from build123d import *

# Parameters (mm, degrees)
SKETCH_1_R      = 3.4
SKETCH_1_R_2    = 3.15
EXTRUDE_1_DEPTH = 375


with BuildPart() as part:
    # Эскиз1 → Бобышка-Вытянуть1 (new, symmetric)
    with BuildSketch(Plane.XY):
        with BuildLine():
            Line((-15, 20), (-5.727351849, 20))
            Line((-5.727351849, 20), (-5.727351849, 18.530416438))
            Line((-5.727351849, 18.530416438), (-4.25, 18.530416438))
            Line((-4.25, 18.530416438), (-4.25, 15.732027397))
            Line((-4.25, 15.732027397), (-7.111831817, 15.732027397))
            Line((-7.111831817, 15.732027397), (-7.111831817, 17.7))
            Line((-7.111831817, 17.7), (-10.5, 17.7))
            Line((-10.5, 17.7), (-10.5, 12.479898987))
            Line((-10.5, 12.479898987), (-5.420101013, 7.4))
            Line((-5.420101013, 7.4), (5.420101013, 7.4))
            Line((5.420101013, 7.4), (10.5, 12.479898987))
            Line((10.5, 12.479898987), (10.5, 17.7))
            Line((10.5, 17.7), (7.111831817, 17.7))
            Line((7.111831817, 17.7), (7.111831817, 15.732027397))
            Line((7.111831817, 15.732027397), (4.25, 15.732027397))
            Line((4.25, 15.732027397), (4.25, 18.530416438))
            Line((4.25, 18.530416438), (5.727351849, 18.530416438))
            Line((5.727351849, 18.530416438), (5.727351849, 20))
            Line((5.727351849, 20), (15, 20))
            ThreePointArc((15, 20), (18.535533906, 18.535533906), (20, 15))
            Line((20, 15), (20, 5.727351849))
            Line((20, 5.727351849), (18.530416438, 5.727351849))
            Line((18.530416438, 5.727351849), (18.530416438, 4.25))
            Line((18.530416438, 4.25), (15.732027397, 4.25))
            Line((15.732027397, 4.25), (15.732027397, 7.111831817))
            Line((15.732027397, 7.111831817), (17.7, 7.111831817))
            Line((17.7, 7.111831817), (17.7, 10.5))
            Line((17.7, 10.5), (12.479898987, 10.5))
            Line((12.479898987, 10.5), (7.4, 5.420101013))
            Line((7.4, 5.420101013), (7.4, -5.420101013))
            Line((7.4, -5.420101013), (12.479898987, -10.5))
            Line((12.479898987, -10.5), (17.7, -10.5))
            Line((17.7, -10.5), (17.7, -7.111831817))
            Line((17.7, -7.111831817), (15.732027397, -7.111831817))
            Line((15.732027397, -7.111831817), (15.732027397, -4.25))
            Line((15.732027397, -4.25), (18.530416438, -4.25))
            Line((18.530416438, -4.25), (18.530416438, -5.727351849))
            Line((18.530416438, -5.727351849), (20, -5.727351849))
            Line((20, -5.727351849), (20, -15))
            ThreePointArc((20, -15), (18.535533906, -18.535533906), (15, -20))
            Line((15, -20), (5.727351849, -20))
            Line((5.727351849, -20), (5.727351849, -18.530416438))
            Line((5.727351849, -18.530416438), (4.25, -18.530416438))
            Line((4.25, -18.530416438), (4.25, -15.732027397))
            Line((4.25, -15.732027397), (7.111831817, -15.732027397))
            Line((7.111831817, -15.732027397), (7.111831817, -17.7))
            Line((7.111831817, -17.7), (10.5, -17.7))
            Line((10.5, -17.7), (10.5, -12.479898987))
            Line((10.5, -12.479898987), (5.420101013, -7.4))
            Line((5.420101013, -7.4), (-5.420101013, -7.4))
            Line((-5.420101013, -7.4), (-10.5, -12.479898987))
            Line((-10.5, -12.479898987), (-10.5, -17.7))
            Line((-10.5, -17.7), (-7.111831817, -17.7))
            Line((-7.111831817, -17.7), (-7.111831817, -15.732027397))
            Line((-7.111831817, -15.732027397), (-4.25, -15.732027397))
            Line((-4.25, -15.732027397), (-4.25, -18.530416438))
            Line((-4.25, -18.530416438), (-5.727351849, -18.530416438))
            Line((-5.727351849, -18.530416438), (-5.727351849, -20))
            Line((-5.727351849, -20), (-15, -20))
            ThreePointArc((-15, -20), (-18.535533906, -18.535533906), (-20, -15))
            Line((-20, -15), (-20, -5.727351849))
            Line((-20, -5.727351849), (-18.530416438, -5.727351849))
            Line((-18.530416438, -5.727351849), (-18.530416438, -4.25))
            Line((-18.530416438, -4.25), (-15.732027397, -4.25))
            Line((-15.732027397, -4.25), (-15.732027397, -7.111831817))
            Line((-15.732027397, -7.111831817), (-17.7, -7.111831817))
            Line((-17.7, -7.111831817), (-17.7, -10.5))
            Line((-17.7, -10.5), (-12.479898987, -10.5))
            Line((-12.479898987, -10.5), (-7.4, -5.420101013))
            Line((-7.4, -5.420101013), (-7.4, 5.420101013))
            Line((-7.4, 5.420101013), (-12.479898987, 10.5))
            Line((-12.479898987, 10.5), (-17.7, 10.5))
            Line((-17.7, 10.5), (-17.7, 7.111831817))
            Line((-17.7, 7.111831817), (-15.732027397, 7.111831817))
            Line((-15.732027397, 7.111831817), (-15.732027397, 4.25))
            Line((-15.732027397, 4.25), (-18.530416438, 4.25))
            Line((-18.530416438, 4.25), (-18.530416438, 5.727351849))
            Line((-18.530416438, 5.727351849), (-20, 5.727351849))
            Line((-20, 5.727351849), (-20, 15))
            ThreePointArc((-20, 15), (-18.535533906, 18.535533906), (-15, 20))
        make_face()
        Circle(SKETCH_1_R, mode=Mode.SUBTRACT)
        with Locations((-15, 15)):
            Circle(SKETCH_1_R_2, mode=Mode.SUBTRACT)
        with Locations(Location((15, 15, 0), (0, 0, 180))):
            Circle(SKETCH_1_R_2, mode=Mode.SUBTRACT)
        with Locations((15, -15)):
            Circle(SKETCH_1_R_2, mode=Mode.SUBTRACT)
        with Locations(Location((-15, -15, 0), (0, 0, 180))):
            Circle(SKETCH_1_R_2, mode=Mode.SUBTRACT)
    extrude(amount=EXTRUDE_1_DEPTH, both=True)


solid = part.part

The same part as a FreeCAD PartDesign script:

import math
import FreeCAD as App
import Part
import Sketcher

doc = App.newDocument("Part")
body = doc.addObject("PartDesign::Body", "Body")

sketch1 = doc.addObject("Sketcher::SketchObject", "Sketch")
body.addObject(sketch1)
sketch1.AttachmentSupport = (doc.XY_Plane, [""])
sketch1.MapMode = "FlatFace"
sketch1.addGeometry([
    Part.LineSegment(App.Vector(-5.7, 20, 0), App.Vector(-15, 20, 0)),
    Part.ArcOfCircle(Part.Circle(App.Vector(-15, 15, 0), App.Vector(0, 0, 1), 5), math.radians(90), math.radians(180)),
    Part.LineSegment(App.Vector(-20, 15, 0), App.Vector(-20, 5.7, 0)),
    Part.LineSegment(App.Vector(-20, 5.7, 0), App.Vector(-18.5, 5.7, 0)),
    Part.LineSegment(App.Vector(-18.5, 5.7, 0), App.Vector(-18.5, 4.2, 0)),
    Part.LineSegment(App.Vector(-18.5, 4.2, 0), App.Vector(-15.7, 4.2, 0)),
    Part.LineSegment(App.Vector(-15.7, 4.2, 0), App.Vector(-15.7, 7.1, 0)),
    Part.LineSegment(App.Vector(-15.7, 7.1, 0), App.Vector(-17.7, 7.1, 0)),
    Part.LineSegment(App.Vector(-17.7, 7.1, 0), App.Vector(-17.7, 10.5, 0)),
    Part.LineSegment(App.Vector(-17.7, 10.5, 0), App.Vector(-12.5, 10.5, 0)),
    Part.LineSegment(App.Vector(-12.5, 10.5, 0), App.Vector(-7.4, 5.4, 0)),
    Part.LineSegment(App.Vector(-7.4, 5.4, 0), App.Vector(-7.4, -5.4, 0)),
    Part.LineSegment(App.Vector(-7.4, -5.4, 0), App.Vector(-12.5, -10.5, 0)),
    Part.LineSegment(App.Vector(-12.5, -10.5, 0), App.Vector(-17.7, -10.5, 0)),
    Part.LineSegment(App.Vector(-17.7, -10.5, 0), App.Vector(-17.7, -7.1, 0)),
    Part.LineSegment(App.Vector(-17.7, -7.1, 0), App.Vector(-15.7, -7.1, 0)),
    Part.LineSegment(App.Vector(-15.7, -7.1, 0), App.Vector(-15.7, -4.2, 0)),
    Part.LineSegment(App.Vector(-15.7, -4.2, 0), App.Vector(-18.5, -4.2, 0)),
    Part.LineSegment(App.Vector(-18.5, -4.2, 0), App.Vector(-18.5, -5.7, 0)),
    Part.LineSegment(App.Vector(-18.5, -5.7, 0), App.Vector(-20, -5.7, 0)),
    Part.LineSegment(App.Vector(-20, -5.7, 0), App.Vector(-20, -15, 0)),
    Part.ArcOfCircle(Part.Circle(App.Vector(-15, -15, 0), App.Vector(0, 0, 1), 5), math.radians(180), math.radians(270)),
    Part.LineSegment(App.Vector(-15, -20, 0), App.Vector(-5.7, -20, 0)),
    Part.LineSegment(App.Vector(-5.7, -20, 0), App.Vector(-5.7, -18.5, 0)),
    Part.LineSegment(App.Vector(-5.7, -18.5, 0), App.Vector(-4.2, -18.5, 0)),
    Part.LineSegment(App.Vector(-4.2, -18.5, 0), App.Vector(-4.2, -15.7, 0)),
    Part.LineSegment(App.Vector(-4.2, -15.7, 0), App.Vector(-7.1, -15.7, 0)),
    Part.LineSegment(App.Vector(-7.1, -15.7, 0), App.Vector(-7.1, -17.7, 0)),
    Part.LineSegment(App.Vector(-7.1, -17.7, 0), App.Vector(-10.5, -17.7, 0)),
    Part.LineSegment(App.Vector(-10.5, -17.7, 0), App.Vector(-10.5, -12.5, 0)),
    Part.LineSegment(App.Vector(-10.5, -12.5, 0), App.Vector(-5.4, -7.4, 0)),
    Part.LineSegment(App.Vector(-5.4, -7.4, 0), App.Vector(5.4, -7.4, 0)),
    Part.LineSegment(App.Vector(5.4, -7.4, 0), App.Vector(10.5, -12.5, 0)),
    Part.LineSegment(App.Vector(10.5, -12.5, 0), App.Vector(10.5, -17.7, 0)),
    Part.LineSegment(App.Vector(10.5, -17.7, 0), App.Vector(7.1, -17.7, 0)),
    Part.LineSegment(App.Vector(7.1, -17.7, 0), App.Vector(7.1, -15.7, 0)),
    Part.LineSegment(App.Vector(7.1, -15.7, 0), App.Vector(4.2, -15.7, 0)),
    Part.LineSegment(App.Vector(4.2, -15.7, 0), App.Vector(4.2, -18.5, 0)),
    Part.LineSegment(App.Vector(4.2, -18.5, 0), App.Vector(5.7, -18.5, 0)),
    Part.LineSegment(App.Vector(5.7, -18.5, 0), App.Vector(5.7, -20, 0)),
    Part.LineSegment(App.Vector(5.7, -20, 0), App.Vector(15, -20, 0)),
    Part.ArcOfCircle(Part.Circle(App.Vector(15, -15, 0), App.Vector(0, 0, 1), 5), math.radians(-90), math.radians(0)),
    Part.LineSegment(App.Vector(20, -15, 0), App.Vector(20, -5.7, 0)),
    Part.LineSegment(App.Vector(20, -5.7, 0), App.Vector(18.5, -5.7, 0)),
    Part.LineSegment(App.Vector(18.5, -5.7, 0), App.Vector(18.5, -4.2, 0)),
    Part.LineSegment(App.Vector(18.5, -4.2, 0), App.Vector(15.7, -4.2, 0)),
    Part.LineSegment(App.Vector(15.7, -4.2, 0), App.Vector(15.7, -7.1, 0)),
    Part.LineSegment(App.Vector(15.7, -7.1, 0), App.Vector(17.7, -7.1, 0)),
    Part.LineSegment(App.Vector(17.7, -7.1, 0), App.Vector(17.7, -10.5, 0)),
    Part.LineSegment(App.Vector(17.7, -10.5, 0), App.Vector(12.5, -10.5, 0)),
    Part.LineSegment(App.Vector(12.5, -10.5, 0), App.Vector(7.4, -5.4, 0)),
    Part.LineSegment(App.Vector(7.4, -5.4, 0), App.Vector(7.4, 5.4, 0)),
    Part.LineSegment(App.Vector(7.4, 5.4, 0), App.Vector(12.5, 10.5, 0)),
    Part.LineSegment(App.Vector(12.5, 10.5, 0), App.Vector(17.7, 10.5, 0)),
    Part.LineSegment(App.Vector(17.7, 10.5, 0), App.Vector(17.7, 7.1, 0)),
    Part.LineSegment(App.Vector(17.7, 7.1, 0), App.Vector(15.7, 7.1, 0)),
    Part.LineSegment(App.Vector(15.7, 7.1, 0), App.Vector(15.7, 4.2, 0)),
    Part.LineSegment(App.Vector(15.7, 4.2, 0), App.Vector(18.5, 4.2, 0)),
    Part.LineSegment(App.Vector(18.5, 4.2, 0), App.Vector(18.5, 5.7, 0)),
    Part.LineSegment(App.Vector(18.5, 5.7, 0), App.Vector(20, 5.7, 0)),
    Part.LineSegment(App.Vector(20, 5.7, 0), App.Vector(20, 15, 0)),
    Part.ArcOfCircle(Part.Circle(App.Vector(15, 15, 0), App.Vector(0, 0, 1), 5), math.radians(0), math.radians(90)),
    Part.LineSegment(App.Vector(15, 20, 0), App.Vector(5.7, 20, 0)),
    Part.LineSegment(App.Vector(5.7, 20, 0), App.Vector(5.7, 18.5, 0)),
    Part.LineSegment(App.Vector(5.7, 18.5, 0), App.Vector(4.2, 18.5, 0)),
    Part.LineSegment(App.Vector(4.2, 18.5, 0), App.Vector(4.2, 15.7, 0)),
    Part.LineSegment(App.Vector(4.2, 15.7, 0), App.Vector(7.1, 15.7, 0)),
    Part.LineSegment(App.Vector(7.1, 15.7, 0), App.Vector(7.1, 17.7, 0)),
    Part.LineSegment(App.Vector(7.1, 17.7, 0), App.Vector(10.5, 17.7, 0)),
    Part.LineSegment(App.Vector(10.5, 17.7, 0), App.Vector(10.5, 12.5, 0)),
    Part.LineSegment(App.Vector(10.5, 12.5, 0), App.Vector(5.4, 7.4, 0)),
    Part.LineSegment(App.Vector(5.4, 7.4, 0), App.Vector(-5.4, 7.4, 0)),
    Part.LineSegment(App.Vector(-5.4, 7.4, 0), App.Vector(-10.5, 12.5, 0)),
    Part.LineSegment(App.Vector(-10.5, 12.5, 0), App.Vector(-10.5, 17.7, 0)),
    Part.LineSegment(App.Vector(-10.5, 17.7, 0), App.Vector(-7.1, 17.7, 0)),
    Part.LineSegment(App.Vector(-7.1, 17.7, 0), App.Vector(-7.1, 15.7, 0)),
    Part.LineSegment(App.Vector(-7.1, 15.7, 0), App.Vector(-4.2, 15.7, 0)),
    Part.LineSegment(App.Vector(-4.2, 15.7, 0), App.Vector(-4.2, 18.5, 0)),
    Part.LineSegment(App.Vector(-4.2, 18.5, 0), App.Vector(-5.7, 18.5, 0)),
    Part.LineSegment(App.Vector(-5.7, 18.5, 0), App.Vector(-5.7, 20, 0)),
    Part.Circle(App.Vector(15, -15, 0), App.Vector(0, 0, 1), 3.1),
    Part.Circle(App.Vector(-15, -15, 0), App.Vector(0, 0, 1), 3.1),
    Part.Circle(App.Vector(15, 15, 0), App.Vector(0, 0, 1), 3.1),
    Part.Circle(App.Vector(0, 0, 0), App.Vector(0, 0, 1), 3.4),
    Part.Circle(App.Vector(-15, 15, 0), App.Vector(0, 0, 1), 3.1),
], False)
sketch1.addConstraint([
    Sketcher.Constraint("Tangent", 0, 2, 1, 1),
    Sketcher.Constraint("Tangent", 1, 2, 2, 1),
    Sketcher.Constraint("Coincident", 2, 2, 3, 1),
    Sketcher.Constraint("Coincident", 3, 2, 4, 1),
    Sketcher.Constraint("Coincident", 4, 2, 5, 1),
    Sketcher.Constraint("Coincident", 5, 2, 6, 1),
    Sketcher.Constraint("Coincident", 6, 2, 7, 1),
    Sketcher.Constraint("Coincident", 7, 2, 8, 1),
    Sketcher.Constraint("Coincident", 8, 2, 9, 1),
    Sketcher.Constraint("Coincident", 9, 2, 10, 1),
    Sketcher.Constraint("Coincident", 10, 2, 11, 1),
    Sketcher.Constraint("Coincident", 11, 2, 12, 1),
    Sketcher.Constraint("Coincident", 12, 2, 13, 1),
    Sketcher.Constraint("Coincident", 13, 2, 14, 1),
    Sketcher.Constraint("Coincident", 14, 2, 15, 1),
    Sketcher.Constraint("Coincident", 15, 2, 16, 1),
    Sketcher.Constraint("Coincident", 16, 2, 17, 1),
    Sketcher.Constraint("Coincident", 17, 2, 18, 1),
    Sketcher.Constraint("Coincident", 18, 2, 19, 1),
    Sketcher.Constraint("Coincident", 19, 2, 20, 1),
    Sketcher.Constraint("Tangent", 20, 2, 21, 1),
    Sketcher.Constraint("Tangent", 21, 2, 22, 1),
    Sketcher.Constraint("Coincident", 22, 2, 23, 1),
    Sketcher.Constraint("Coincident", 23, 2, 24, 1),
    Sketcher.Constraint("Coincident", 24, 2, 25, 1),
    Sketcher.Constraint("Coincident", 25, 2, 26, 1),
    Sketcher.Constraint("Coincident", 26, 2, 27, 1),
    Sketcher.Constraint("Coincident", 27, 2, 28, 1),
    Sketcher.Constraint("Coincident", 28, 2, 29, 1),
    Sketcher.Constraint("Coincident", 29, 2, 30, 1),
    Sketcher.Constraint("Coincident", 30, 2, 31, 1),
    Sketcher.Constraint("Coincident", 31, 2, 32, 1),
    Sketcher.Constraint("Coincident", 32, 2, 33, 1),
    Sketcher.Constraint("Coincident", 33, 2, 34, 1),
    Sketcher.Constraint("Coincident", 34, 2, 35, 1),
    Sketcher.Constraint("Coincident", 35, 2, 36, 1),
    Sketcher.Constraint("Coincident", 36, 2, 37, 1),
    Sketcher.Constraint("Coincident", 37, 2, 38, 1),
    Sketcher.Constraint("Coincident", 38, 2, 39, 1),
    Sketcher.Constraint("Coincident", 39, 2, 40, 1),
    Sketcher.Constraint("Tangent", 40, 2, 41, 1),
    Sketcher.Constraint("Tangent", 41, 2, 42, 1),
    Sketcher.Constraint("Coincident", 42, 2, 43, 1),
    Sketcher.Constraint("Coincident", 43, 2, 44, 1),
    Sketcher.Constraint("Coincident", 44, 2, 45, 1),
    Sketcher.Constraint("Coincident", 45, 2, 46, 1),
    Sketcher.Constraint("Coincident", 46, 2, 47, 1),
    Sketcher.Constraint("Coincident", 47, 2, 48, 1),
    Sketcher.Constraint("Coincident", 48, 2, 49, 1),
    Sketcher.Constraint("Coincident", 49, 2, 50, 1),
    Sketcher.Constraint("Coincident", 50, 2, 51, 1),
    Sketcher.Constraint("Coincident", 51, 2, 52, 1),
    Sketcher.Constraint("Coincident", 52, 2, 53, 1),
    Sketcher.Constraint("Coincident", 53, 2, 54, 1),
    Sketcher.Constraint("Coincident", 54, 2, 55, 1),
    Sketcher.Constraint("Coincident", 55, 2, 56, 1),
    Sketcher.Constraint("Coincident", 56, 2, 57, 1),
    Sketcher.Constraint("Coincident", 57, 2, 58, 1),
    Sketcher.Constraint("Coincident", 58, 2, 59, 1),
    Sketcher.Constraint("Coincident", 59, 2, 60, 1),
    Sketcher.Constraint("Tangent", 60, 2, 61, 1),
    Sketcher.Constraint("Tangent", 61, 2, 62, 1),
    Sketcher.Constraint("Coincident", 62, 2, 63, 1),
    Sketcher.Constraint("Coincident", 63, 2, 64, 1),
    Sketcher.Constraint("Coincident", 64, 2, 65, 1),
    Sketcher.Constraint("Coincident", 65, 2, 66, 1),
    Sketcher.Constraint("Coincident", 66, 2, 67, 1),
    Sketcher.Constraint("Coincident", 67, 2, 68, 1),
    Sketcher.Constraint("Coincident", 68, 2, 69, 1),
    Sketcher.Constraint("Coincident", 69, 2, 70, 1),
    Sketcher.Constraint("Coincident", 70, 2, 71, 1),
    Sketcher.Constraint("Coincident", 71, 2, 72, 1),
    Sketcher.Constraint("Coincident", 72, 2, 73, 1),
    Sketcher.Constraint("Coincident", 73, 2, 74, 1),
    Sketcher.Constraint("Coincident", 74, 2, 75, 1),
    Sketcher.Constraint("Coincident", 75, 2, 76, 1),
    Sketcher.Constraint("Coincident", 76, 2, 77, 1),
    Sketcher.Constraint("Coincident", 77, 2, 78, 1),
    Sketcher.Constraint("Coincident", 78, 2, 79, 1),
    Sketcher.Constraint("Coincident", 79, 2, 0, 1),
    Sketcher.Constraint("Horizontal", 0),
    Sketcher.Constraint("Vertical", 2),
    Sketcher.Constraint("Horizontal", 3),
    Sketcher.Constraint("Vertical", 4),
    Sketcher.Constraint("Horizontal", 5),
    Sketcher.Constraint("Vertical", 6),
    Sketcher.Constraint("Horizontal", 7),
    Sketcher.Constraint("Vertical", 8),
    Sketcher.Constraint("Horizontal", 9),
    Sketcher.Constraint("Vertical", 11),
    Sketcher.Constraint("Horizontal", 13),
    Sketcher.Constraint("Vertical", 14),
    Sketcher.Constraint("Horizontal", 15),
    Sketcher.Constraint("Vertical", 16),
    Sketcher.Constraint("Horizontal", 17),
    Sketcher.Constraint("Vertical", 18),
    Sketcher.Constraint("Horizontal", 19),
    Sketcher.Constraint("Vertical", 20),
    Sketcher.Constraint("Horizontal", 22),
    Sketcher.Constraint("Vertical", 23),
    Sketcher.Constraint("Horizontal", 24),
    Sketcher.Constraint("Vertical", 25),
    Sketcher.Constraint("Horizontal", 26),
    Sketcher.Constraint("Vertical", 27),
    Sketcher.Constraint("Horizontal", 28),
    Sketcher.Constraint("Vertical", 29),
    Sketcher.Constraint("Horizontal", 31),
    Sketcher.Constraint("Vertical", 33),
    Sketcher.Constraint("Horizontal", 34),
    Sketcher.Constraint("Vertical", 35),
    Sketcher.Constraint("Horizontal", 36),
    Sketcher.Constraint("Vertical", 37),
    Sketcher.Constraint("Horizontal", 38),
    Sketcher.Constraint("Vertical", 39),
    Sketcher.Constraint("Horizontal", 40),
    Sketcher.Constraint("Vertical", 42),
    Sketcher.Constraint("Horizontal", 43),
    Sketcher.Constraint("Vertical", 44),
    Sketcher.Constraint("Horizontal", 45),
    Sketcher.Constraint("Vertical", 46),
    Sketcher.Constraint("Horizontal", 47),
    Sketcher.Constraint("Vertical", 48),
    Sketcher.Constraint("Horizontal", 49),
    Sketcher.Constraint("Vertical", 51),
    Sketcher.Constraint("Horizontal", 53),
    Sketcher.Constraint("Vertical", 54),
    Sketcher.Constraint("Horizontal", 55),
    Sketcher.Constraint("Vertical", 56),
    Sketcher.Constraint("Horizontal", 57),
    Sketcher.Constraint("Vertical", 58),
    Sketcher.Constraint("Horizontal", 59),
    Sketcher.Constraint("Vertical", 60),
    Sketcher.Constraint("Horizontal", 62),
    Sketcher.Constraint("Vertical", 63),
    Sketcher.Constraint("Horizontal", 64),
    Sketcher.Constraint("Vertical", 65),
    Sketcher.Constraint("Horizontal", 66),
    Sketcher.Constraint("Vertical", 67),
    Sketcher.Constraint("Horizontal", 68),
    Sketcher.Constraint("Vertical", 69),
    Sketcher.Constraint("Horizontal", 71),
    Sketcher.Constraint("Vertical", 73),
    Sketcher.Constraint("Horizontal", 74),
    Sketcher.Constraint("Vertical", 75),
    Sketcher.Constraint("Horizontal", 76),
    Sketcher.Constraint("Vertical", 77),
    Sketcher.Constraint("Horizontal", 78),
    Sketcher.Constraint("Vertical", 79),
    Sketcher.Constraint("Coincident", 83, 3, -1, 1),
    Sketcher.Constraint("Coincident", 80, 3, 41, 3),
    Sketcher.Constraint("Coincident", 81, 3, 21, 3),
    Sketcher.Constraint("Coincident", 82, 3, 61, 3),
    Sketcher.Constraint("Coincident", 84, 3, 1, 3),
    Sketcher.Constraint("Equal", 1, 21),
    Sketcher.Constraint("Equal", 21, 41),
    Sketcher.Constraint("Equal", 41, 61),
    Sketcher.Constraint("Equal", 80, 81),
    Sketcher.Constraint("Equal", 81, 82),
    Sketcher.Constraint("Equal", 82, 84),
    Sketcher.Constraint("Symmetric", 1, 3, 41, 3, -1, 1),
    Sketcher.Constraint("Symmetric", 21, 3, 61, 3, -1, 1),
    Sketcher.Constraint("Symmetric", 3, 2, 43, 2, -1, 1),
    Sketcher.Constraint("Symmetric", 5, 2, 45, 2, -1, 1),
    Sketcher.Constraint("Symmetric", 7, 2, 47, 2, -1, 1),
    Sketcher.Constraint("Symmetric", 9, 2, 49, 2, -1, 1),
    Sketcher.Constraint("Symmetric", 10, 2, 50, 2, -1, 1),
    Sketcher.Constraint("Symmetric", 12, 2, 52, 2, -1, 1),
    Sketcher.Constraint("Symmetric", 14, 2, 54, 2, -1, 1),
    Sketcher.Constraint("Symmetric", 16, 2, 56, 2, -1, 1),
    Sketcher.Constraint("Symmetric", 18, 2, 58, 2, -1, 1),
    Sketcher.Constraint("Symmetric", 23, 2, 63, 2, -1, 1),
    Sketcher.Constraint("Symmetric", 25, 2, 65, 2, -1, 1),
    Sketcher.Constraint("Symmetric", 27, 2, 67, 2, -1, 1),
    Sketcher.Constraint("Symmetric", 29, 2, 69, 2, -1, 1),
    Sketcher.Constraint("Symmetric", 30, 2, 70, 2, -1, 1),
    Sketcher.Constraint("Symmetric", 32, 2, 72, 2, -1, 1),
    Sketcher.Constraint("Symmetric", 34, 2, 74, 2, -1, 1),
    Sketcher.Constraint("Symmetric", 36, 2, 76, 2, -1, 1),
    Sketcher.Constraint("Symmetric", 38, 2, 78, 2, -1, 1),
    Sketcher.Constraint("Symmetric", 21, 3, 41, 3, -2),
    Sketcher.Constraint("Symmetric", 29, 2, 32, 2, -2),
    Sketcher.Constraint("Symmetric", 27, 2, 34, 2, -2),
    Sketcher.Constraint("Symmetric", 25, 2, 36, 2, -2),
    Sketcher.Constraint("Symmetric", 23, 2, 38, 2, -2),
    Sketcher.Constraint("Symmetric", 18, 2, 43, 2, -2),
    Sketcher.Constraint("Symmetric", 16, 2, 45, 2, -2),
    Sketcher.Constraint("Symmetric", 14, 2, 47, 2, -2),
    Sketcher.Constraint("Symmetric", 12, 2, 49, 2, -2),
    Sketcher.Constraint("Perpendicular", 10, 12),
    Sketcher.Constraint("Parallel", 12, 30),
    Sketcher.Constraint("Perpendicular", 30, 32),
    Sketcher.Constraint("Perpendicular", 50, 52),
    Sketcher.Constraint("Perpendicular", 70, 72),
    Sketcher.Constraint("Horizontal", 11, 2, 50, 2),
    Sketcher.Constraint("Equal", 62, 2),
    Sketcher.Constraint("Equal", 78, 4),
    Sketcher.Constraint("Equal", 76, 6),
    Sketcher.Constraint("Equal", 74, 8),
    Sketcher.Constraint("Equal", 71, 11),
    Sketcher.Constraint("Equal", 59, 23),
    Sketcher.Constraint("Equal", 57, 25),
    Sketcher.Constraint("Equal", 55, 27),
    Sketcher.Constraint("Equal", 53, 29),
    Sketcher.Constraint("Equal", 12, 30),
    Sketcher.Constraint("Radius", 1, 5.0),
    Sketcher.Constraint("Diameter", 80, 6.3),
    Sketcher.Constraint("Diameter", 83, 6.8),
    Sketcher.Constraint("DistanceX", 1, 3, -1, 1, 15.0),
    Sketcher.Constraint("DistanceX", 7, 2, -1, 1, 17.7),
    Sketcher.Constraint("DistanceY", -1, 1, 8, 2, 10.5),
    Sketcher.Constraint("DistanceX", 10, 2, -1, 1, 7.4),
    Sketcher.Constraint("DistanceY", -1, 1, 4, 2, 4.25),
    Sketcher.Constraint("DistanceX", 9, 1, 9, 2, 5.220101),
    Sketcher.Constraint("DistanceX", 0, 2, 0, 1, 9.272648),
    Sketcher.Constraint("DistanceX", 5, 1, 5, 2, 2.798389),
    Sketcher.Constraint("DistanceX", 26, 2, 26, 1, 2.861832),
    Sketcher.Constraint("DistanceX", 3, 1, 3, 2, 1.469584),
])
pad1 = doc.addObject("PartDesign::Pad", "Pad")
body.addObject(pad1)
pad1.Profile = sketch1
pad1.Length = 750
pad1.Midplane = True

doc.recompute()
